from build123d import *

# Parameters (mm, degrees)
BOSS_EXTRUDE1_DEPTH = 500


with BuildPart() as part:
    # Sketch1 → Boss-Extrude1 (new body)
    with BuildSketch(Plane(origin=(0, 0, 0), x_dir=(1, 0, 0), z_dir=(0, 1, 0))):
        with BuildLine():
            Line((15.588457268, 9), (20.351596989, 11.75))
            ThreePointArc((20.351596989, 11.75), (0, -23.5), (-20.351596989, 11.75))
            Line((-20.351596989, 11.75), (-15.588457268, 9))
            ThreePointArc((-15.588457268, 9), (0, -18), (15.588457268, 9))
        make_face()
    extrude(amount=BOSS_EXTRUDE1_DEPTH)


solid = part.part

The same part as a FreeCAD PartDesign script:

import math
import FreeCAD as App
import Part
import Sketcher
Q = App.Units.Quantity

doc = App.newDocument("Part")
body = doc.addObject("PartDesign::Body", "Body")

# Sketch on XZ plane
sketch1 = body.newObject("Sketcher::SketchObject", "Sketch")
sketch1.AttachmentSupport = (doc.getObject("XZ_Plane"), [""])
sketch1.MapMode = "FlatFace"
sketch1.addGeometry([
    Part.LineSegment(App.Vector(20, -12, 0), App.Vector(16, -9, 0)),
    Part.ArcOfCircle(Part.Circle(App.Vector(0, 0, 0), App.Vector(0, 0, 1), 18), math.radians(-30), math.radians(210)),
    Part.LineSegment(App.Vector(-16, -9, 0), App.Vector(-20, -12, 0)),
    Part.ArcOfCircle(Part.Circle(App.Vector(0, 0, 0), App.Vector(0, 0, 1), 24), math.radians(-30), math.radians(210)),
], False)
sketch1.addConstraint([
    Sketcher.Constraint("Coincident", 0, 2, 1, 1),
    Sketcher.Constraint("Coincident", 1, 2, 2, 1),
    Sketcher.Constraint("Coincident", 2, 2, 3, 2),
    Sketcher.Constraint("Coincident", 3, 1, 0, 1),
    Sketcher.Constraint("Coincident", 1, 3, -1, 1),
    Sketcher.Constraint("Coincident", 3, 3, -1, 1),
    Sketcher.Constraint("Horizontal", 0, 2, 1, 2),
    Sketcher.Constraint("Horizontal", 2, 2, 3, 1),
    Sketcher.Constraint("Radius", 1, Q("18 mm")),
    Sketcher.Constraint("Radius", 3, Q("23.5 mm")),
    Sketcher.Constraint("Angle", 0, Q("150 deg")),
    Sketcher.Constraint("DistanceY", 0, 2, -1, 1, Q("9 mm")),
])
pad1 = body.newObject("PartDesign::Pad", "Pad")
pad1.Profile = sketch1
pad1.Length = 500
pad1.Reversed = True

doc.recompute()
